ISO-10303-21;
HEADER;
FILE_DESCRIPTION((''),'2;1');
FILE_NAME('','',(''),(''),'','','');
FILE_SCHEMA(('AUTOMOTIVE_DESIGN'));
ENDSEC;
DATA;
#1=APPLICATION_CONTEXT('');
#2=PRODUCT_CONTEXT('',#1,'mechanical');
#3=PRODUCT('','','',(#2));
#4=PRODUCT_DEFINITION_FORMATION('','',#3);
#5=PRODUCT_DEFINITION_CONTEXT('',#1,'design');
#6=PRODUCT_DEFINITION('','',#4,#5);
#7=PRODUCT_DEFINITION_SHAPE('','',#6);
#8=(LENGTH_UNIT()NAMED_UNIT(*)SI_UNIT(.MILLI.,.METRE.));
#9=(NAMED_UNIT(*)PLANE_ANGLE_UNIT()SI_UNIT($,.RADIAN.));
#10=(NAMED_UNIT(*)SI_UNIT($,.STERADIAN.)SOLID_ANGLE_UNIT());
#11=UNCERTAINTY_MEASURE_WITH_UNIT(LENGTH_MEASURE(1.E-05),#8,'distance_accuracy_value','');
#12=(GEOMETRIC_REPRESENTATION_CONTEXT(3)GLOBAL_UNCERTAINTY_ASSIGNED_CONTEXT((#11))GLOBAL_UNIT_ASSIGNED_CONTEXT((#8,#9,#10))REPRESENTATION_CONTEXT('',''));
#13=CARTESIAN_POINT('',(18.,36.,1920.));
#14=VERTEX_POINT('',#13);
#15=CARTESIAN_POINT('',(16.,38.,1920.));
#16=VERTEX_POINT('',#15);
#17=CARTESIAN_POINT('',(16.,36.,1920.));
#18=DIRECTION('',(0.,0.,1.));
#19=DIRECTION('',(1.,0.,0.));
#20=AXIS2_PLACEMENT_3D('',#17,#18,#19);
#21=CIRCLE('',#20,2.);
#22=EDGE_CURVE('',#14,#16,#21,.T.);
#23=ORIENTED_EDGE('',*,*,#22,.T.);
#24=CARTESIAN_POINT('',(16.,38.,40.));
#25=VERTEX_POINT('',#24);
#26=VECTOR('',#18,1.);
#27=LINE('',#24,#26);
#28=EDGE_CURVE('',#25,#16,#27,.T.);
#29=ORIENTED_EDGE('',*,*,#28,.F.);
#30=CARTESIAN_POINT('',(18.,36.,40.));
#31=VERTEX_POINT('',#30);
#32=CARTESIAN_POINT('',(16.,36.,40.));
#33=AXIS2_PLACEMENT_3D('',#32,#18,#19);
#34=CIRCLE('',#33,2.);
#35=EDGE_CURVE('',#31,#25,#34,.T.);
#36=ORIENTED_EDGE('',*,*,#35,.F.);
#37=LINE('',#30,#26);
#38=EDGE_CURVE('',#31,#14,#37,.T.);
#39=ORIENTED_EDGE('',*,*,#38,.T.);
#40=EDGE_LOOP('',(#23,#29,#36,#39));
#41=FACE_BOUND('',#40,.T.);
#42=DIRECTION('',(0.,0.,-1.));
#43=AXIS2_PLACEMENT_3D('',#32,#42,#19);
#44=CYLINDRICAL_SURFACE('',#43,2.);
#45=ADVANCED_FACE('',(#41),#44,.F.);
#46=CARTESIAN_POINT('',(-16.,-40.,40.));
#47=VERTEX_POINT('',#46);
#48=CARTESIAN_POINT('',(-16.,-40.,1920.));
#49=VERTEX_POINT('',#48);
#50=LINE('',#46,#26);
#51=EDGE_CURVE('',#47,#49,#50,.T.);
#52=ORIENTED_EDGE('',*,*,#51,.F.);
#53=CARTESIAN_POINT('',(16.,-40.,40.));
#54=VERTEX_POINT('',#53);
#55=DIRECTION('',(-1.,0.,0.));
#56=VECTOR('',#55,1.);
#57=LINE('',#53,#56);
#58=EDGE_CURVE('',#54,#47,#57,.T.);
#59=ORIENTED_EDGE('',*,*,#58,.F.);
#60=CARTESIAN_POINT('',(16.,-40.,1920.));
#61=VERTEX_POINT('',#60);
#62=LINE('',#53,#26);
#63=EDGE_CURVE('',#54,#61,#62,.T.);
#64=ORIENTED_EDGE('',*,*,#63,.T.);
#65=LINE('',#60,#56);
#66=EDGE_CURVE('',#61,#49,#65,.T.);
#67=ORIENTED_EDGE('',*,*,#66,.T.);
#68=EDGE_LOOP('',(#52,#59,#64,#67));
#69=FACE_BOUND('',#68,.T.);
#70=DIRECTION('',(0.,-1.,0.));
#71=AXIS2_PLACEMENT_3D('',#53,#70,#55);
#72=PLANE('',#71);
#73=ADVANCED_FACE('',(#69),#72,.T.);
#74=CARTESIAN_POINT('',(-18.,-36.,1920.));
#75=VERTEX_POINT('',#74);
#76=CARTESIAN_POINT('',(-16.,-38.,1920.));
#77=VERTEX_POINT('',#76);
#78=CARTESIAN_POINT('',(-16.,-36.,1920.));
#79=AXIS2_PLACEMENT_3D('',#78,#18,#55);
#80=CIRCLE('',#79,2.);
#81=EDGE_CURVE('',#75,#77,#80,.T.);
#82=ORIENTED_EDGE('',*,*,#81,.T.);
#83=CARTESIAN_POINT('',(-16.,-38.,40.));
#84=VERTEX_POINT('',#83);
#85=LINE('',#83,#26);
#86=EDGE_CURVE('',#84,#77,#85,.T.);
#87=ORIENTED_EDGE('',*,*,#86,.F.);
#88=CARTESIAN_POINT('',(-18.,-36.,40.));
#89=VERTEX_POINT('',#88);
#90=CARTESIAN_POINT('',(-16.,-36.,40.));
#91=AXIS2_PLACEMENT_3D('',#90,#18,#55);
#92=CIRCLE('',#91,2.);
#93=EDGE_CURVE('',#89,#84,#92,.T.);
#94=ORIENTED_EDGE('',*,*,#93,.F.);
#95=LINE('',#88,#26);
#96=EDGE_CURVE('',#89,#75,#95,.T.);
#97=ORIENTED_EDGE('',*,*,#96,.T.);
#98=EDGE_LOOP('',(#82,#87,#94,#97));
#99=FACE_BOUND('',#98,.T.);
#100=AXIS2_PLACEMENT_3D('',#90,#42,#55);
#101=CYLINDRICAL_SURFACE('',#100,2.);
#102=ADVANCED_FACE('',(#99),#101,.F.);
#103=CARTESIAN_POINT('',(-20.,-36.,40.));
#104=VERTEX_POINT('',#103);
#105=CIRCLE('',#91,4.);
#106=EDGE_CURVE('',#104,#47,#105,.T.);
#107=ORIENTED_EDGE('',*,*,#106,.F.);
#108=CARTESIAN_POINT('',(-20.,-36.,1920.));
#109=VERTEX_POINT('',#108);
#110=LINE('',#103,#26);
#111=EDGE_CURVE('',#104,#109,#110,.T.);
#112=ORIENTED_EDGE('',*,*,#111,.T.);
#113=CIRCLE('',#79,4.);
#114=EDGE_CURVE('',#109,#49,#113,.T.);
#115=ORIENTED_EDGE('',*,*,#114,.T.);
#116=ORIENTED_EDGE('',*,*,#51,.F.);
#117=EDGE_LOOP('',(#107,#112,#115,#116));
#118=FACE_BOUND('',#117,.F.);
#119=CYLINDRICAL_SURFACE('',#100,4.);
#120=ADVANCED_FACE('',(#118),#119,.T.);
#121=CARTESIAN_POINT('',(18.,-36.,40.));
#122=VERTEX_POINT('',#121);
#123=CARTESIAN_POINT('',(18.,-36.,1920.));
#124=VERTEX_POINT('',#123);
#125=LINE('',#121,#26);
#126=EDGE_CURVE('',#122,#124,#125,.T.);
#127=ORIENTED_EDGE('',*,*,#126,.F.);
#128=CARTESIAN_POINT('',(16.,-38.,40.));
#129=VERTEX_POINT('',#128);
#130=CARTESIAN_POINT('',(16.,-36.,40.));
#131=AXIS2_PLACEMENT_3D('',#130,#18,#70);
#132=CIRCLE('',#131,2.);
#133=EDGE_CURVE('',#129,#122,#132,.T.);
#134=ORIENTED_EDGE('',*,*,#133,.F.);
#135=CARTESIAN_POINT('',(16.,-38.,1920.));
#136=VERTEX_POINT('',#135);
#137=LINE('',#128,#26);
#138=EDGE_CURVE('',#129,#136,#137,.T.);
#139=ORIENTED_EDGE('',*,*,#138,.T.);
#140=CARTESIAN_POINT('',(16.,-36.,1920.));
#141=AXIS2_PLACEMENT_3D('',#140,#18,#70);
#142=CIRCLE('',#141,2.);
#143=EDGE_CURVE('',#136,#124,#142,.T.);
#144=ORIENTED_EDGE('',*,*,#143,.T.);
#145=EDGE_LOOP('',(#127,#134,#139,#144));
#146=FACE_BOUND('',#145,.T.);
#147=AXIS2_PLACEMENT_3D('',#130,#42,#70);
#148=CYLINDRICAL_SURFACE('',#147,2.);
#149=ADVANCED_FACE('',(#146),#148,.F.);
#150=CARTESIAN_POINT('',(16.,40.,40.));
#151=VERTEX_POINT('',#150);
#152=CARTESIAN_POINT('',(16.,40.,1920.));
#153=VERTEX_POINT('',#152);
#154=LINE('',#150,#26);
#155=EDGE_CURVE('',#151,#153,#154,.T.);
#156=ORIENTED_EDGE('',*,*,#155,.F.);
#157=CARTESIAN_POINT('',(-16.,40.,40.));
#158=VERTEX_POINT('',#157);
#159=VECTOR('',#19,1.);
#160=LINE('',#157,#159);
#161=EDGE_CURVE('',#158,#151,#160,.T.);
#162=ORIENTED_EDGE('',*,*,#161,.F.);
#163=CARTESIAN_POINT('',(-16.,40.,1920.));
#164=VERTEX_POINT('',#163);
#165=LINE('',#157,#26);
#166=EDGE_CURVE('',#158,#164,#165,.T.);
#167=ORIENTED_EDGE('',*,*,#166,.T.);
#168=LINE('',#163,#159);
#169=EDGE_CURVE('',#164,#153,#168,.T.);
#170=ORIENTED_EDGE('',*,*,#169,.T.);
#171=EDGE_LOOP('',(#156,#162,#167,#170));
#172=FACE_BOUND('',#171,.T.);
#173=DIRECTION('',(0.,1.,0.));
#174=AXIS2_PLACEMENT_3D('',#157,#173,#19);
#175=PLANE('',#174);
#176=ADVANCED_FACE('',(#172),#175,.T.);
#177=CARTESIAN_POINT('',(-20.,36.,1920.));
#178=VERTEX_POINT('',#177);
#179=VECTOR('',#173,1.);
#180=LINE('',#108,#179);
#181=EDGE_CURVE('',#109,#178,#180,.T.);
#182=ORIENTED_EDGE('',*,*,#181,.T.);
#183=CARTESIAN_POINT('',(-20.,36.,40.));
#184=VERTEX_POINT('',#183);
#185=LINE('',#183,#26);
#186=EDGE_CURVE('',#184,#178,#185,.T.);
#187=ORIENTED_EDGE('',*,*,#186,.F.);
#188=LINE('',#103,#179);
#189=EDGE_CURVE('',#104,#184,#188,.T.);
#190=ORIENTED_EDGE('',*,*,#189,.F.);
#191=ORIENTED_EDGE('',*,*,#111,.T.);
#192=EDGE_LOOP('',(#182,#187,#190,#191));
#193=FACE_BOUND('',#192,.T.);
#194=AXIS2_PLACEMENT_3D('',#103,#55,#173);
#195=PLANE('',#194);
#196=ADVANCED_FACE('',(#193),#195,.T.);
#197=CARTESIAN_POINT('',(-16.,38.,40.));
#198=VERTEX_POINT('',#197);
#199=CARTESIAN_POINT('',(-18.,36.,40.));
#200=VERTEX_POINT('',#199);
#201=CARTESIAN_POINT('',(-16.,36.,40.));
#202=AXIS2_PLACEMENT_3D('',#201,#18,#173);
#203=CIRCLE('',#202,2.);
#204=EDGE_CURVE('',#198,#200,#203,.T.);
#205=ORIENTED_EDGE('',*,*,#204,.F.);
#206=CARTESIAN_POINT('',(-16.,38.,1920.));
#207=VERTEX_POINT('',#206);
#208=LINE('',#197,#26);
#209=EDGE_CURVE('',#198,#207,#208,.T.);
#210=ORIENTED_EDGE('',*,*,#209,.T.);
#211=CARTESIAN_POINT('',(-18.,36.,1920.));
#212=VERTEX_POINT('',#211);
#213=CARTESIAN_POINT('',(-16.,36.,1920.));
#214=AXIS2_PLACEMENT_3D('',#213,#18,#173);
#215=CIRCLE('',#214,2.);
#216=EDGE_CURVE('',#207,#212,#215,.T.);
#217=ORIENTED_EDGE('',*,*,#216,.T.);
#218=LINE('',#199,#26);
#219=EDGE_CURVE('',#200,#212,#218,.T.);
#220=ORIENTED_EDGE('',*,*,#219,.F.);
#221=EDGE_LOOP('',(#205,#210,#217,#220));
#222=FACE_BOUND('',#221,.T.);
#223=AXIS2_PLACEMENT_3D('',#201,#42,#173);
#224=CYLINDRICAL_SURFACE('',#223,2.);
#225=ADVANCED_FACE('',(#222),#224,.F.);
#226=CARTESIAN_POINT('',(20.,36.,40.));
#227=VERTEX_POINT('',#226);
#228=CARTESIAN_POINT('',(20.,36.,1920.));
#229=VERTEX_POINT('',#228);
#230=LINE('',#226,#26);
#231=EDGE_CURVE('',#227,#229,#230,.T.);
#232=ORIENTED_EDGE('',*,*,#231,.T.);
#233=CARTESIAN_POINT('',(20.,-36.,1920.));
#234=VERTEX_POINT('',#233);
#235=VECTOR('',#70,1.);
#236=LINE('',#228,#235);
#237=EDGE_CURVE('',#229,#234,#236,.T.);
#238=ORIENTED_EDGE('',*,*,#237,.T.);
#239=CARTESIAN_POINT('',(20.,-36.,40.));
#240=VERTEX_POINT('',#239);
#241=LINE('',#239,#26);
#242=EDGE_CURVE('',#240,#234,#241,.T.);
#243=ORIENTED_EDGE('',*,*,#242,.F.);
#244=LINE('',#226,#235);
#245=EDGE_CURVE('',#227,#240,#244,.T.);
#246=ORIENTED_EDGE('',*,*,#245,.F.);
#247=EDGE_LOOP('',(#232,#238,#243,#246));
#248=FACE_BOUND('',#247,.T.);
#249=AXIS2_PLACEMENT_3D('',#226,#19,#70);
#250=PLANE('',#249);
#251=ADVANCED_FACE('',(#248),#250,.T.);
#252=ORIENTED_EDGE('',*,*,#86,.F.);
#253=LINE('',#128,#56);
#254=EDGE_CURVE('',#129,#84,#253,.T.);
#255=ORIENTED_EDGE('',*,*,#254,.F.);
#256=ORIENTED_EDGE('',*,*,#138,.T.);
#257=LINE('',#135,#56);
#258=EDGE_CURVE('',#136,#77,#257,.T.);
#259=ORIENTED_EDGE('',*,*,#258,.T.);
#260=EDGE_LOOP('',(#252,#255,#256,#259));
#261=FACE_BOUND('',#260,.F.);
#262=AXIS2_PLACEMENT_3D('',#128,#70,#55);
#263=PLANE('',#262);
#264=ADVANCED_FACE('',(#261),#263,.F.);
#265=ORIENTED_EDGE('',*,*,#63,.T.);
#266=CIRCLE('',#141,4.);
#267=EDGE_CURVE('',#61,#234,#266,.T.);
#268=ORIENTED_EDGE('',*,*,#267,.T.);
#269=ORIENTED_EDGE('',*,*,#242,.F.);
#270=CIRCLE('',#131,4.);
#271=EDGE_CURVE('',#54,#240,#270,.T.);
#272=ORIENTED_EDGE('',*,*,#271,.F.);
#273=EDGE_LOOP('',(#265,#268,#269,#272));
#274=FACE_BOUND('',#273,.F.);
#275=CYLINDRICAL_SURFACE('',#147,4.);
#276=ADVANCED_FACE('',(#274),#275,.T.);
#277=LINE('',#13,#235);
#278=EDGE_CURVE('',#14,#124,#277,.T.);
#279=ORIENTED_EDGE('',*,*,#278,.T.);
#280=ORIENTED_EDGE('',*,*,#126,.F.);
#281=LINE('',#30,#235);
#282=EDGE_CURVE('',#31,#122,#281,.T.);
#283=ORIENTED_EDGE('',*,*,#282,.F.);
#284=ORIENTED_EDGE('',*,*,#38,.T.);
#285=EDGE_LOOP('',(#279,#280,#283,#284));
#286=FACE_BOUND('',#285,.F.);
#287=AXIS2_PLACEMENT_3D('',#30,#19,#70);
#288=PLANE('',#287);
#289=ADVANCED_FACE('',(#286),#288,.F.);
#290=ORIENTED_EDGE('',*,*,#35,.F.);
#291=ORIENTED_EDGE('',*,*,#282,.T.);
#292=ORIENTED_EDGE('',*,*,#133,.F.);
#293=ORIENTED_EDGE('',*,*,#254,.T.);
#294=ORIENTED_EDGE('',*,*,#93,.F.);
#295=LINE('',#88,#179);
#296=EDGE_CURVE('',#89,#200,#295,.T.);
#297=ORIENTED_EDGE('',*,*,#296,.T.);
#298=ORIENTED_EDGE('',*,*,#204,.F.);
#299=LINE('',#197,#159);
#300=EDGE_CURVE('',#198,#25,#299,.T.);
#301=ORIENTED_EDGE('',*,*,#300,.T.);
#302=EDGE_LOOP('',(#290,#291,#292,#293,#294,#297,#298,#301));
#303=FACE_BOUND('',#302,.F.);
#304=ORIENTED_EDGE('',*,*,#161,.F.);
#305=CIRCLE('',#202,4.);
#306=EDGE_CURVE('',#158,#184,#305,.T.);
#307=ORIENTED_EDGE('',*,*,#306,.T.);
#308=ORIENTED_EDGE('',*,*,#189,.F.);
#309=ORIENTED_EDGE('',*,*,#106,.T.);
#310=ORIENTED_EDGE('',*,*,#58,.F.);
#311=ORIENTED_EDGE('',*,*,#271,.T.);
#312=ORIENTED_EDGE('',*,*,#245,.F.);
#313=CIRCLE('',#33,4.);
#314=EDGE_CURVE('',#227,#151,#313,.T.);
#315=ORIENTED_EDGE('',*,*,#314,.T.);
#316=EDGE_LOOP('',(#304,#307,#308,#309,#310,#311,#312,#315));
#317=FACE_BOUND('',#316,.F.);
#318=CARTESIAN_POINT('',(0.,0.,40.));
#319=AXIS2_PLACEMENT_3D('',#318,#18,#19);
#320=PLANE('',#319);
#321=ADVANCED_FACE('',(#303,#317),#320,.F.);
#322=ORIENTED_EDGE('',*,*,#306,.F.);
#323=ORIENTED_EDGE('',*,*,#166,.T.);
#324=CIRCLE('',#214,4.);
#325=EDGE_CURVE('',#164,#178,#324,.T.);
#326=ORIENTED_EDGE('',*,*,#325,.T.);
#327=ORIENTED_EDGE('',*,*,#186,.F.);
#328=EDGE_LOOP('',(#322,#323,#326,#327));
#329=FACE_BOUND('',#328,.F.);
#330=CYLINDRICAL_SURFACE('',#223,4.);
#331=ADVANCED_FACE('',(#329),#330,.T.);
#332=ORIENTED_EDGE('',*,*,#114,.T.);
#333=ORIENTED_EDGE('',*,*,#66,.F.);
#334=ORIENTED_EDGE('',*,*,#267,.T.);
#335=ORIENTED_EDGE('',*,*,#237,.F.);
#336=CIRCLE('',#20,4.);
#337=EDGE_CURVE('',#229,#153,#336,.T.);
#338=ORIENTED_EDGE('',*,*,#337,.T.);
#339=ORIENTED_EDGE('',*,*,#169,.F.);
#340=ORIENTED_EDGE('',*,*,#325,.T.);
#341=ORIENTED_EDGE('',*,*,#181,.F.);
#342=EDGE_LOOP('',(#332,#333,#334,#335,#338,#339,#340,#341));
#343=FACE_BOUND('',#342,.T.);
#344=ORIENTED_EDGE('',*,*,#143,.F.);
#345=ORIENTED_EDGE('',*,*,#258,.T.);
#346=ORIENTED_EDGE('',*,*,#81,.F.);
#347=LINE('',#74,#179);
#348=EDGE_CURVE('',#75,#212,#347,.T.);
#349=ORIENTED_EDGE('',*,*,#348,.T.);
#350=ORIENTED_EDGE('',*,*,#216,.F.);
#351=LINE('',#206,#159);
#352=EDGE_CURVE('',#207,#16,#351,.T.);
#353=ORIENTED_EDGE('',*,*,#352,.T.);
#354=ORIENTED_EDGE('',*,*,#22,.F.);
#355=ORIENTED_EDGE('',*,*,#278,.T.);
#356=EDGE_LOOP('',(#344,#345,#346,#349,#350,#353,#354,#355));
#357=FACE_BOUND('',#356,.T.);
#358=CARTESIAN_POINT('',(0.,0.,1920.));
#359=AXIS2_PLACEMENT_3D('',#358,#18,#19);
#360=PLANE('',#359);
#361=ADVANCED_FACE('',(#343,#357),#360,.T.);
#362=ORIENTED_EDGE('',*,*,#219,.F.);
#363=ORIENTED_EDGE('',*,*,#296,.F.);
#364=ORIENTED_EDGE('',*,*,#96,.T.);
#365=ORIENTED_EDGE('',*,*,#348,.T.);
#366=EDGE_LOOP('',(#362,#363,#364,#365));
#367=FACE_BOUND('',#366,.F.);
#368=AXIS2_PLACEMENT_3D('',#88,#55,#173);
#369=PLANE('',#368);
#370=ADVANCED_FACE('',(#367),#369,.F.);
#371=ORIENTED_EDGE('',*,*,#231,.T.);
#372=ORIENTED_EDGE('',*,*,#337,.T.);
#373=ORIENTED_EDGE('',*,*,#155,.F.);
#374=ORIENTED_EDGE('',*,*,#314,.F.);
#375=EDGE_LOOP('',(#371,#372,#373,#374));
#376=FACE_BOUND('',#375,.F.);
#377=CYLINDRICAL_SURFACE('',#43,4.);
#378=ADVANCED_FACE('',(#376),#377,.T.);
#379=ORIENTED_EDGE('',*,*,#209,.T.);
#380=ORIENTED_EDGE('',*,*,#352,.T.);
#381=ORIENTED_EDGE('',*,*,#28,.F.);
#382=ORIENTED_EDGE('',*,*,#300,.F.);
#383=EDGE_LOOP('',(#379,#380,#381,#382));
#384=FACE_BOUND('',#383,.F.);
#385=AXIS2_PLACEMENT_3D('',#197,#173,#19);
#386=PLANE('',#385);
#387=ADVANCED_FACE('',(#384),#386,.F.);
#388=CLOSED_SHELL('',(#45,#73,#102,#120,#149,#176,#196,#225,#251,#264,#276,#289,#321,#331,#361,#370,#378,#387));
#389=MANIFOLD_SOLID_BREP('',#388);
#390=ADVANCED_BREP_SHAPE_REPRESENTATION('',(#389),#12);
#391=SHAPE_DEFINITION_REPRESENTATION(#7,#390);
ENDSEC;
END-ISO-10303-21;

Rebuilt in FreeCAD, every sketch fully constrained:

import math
import FreeCAD as App
import Part
import Sketcher
from FreeCAD import Vector

doc = App.newDocument("Part")
body = doc.addObject("PartDesign::Body", "Body")

# Sketch on XY plane
sketch1 = body.newObject("Sketcher::SketchObject", "Sketch")
sketch1.AttachmentSupport = (doc.getObject("XY_Plane"), [""])
sketch1.MapMode = "FlatFace"
sketch1.AttachmentOffset = App.Placement(Vector(0, 0, 40), App.Rotation())
sketch1.addGeometry([
    Part.LineSegment(Vector(-20, 36, 0), Vector(-20, -36, 0)),  # 0
    Part.ArcOfCircle(Part.Circle(Vector(-16, -36, 0), Vector(0, 0, 1), 4), math.radians(180), math.radians(270)),  # 1
    Part.LineSegment(Vector(-16, -40, 0), Vector(16, -40, 0)),  # 2
    Part.ArcOfCircle(Part.Circle(Vector(16, -36, 0), Vector(0, 0, 1), 4), math.radians(-90), math.radians(0)),  # 3
    Part.LineSegment(Vector(20, -36, 0), Vector(20, 36, 0)),  # 4
    Part.ArcOfCircle(Part.Circle(Vector(16, 36, 0), Vector(0, 0, 1), 4), math.radians(0), math.radians(90)),  # 5
    Part.LineSegment(Vector(16, 40, 0), Vector(-16, 40, 0)),  # 6
    Part.ArcOfCircle(Part.Circle(Vector(-16, 36, 0), Vector(0, 0, 1), 4), math.radians(90), math.radians(180)),  # 7
    Part.ArcOfCircle(Part.Circle(Vector(-16, 36, 0), Vector(0, 0, 1), 2), math.radians(90), math.radians(180)),  # 8
    Part.LineSegment(Vector(-16, 38, 0), Vector(16, 38, 0)),  # 9
    Part.ArcOfCircle(Part.Circle(Vector(16, 36, 0), Vector(0, 0, 1), 2), math.radians(0), math.radians(90)),  # 10
    Part.LineSegment(Vector(18, 36, 0), Vector(18, -36, 0)),  # 11
    Part.ArcOfCircle(Part.Circle(Vector(16, -36, 0), Vector(0, 0, 1), 2), math.radians(-90), math.radians(0)),  # 12
    Part.LineSegment(Vector(16, -38, 0), Vector(-16, -38, 0)),  # 13
    Part.ArcOfCircle(Part.Circle(Vector(-16, -36, 0), Vector(0, 0, 1), 2), math.radians(180), math.radians(270)),  # 14
    Part.LineSegment(Vector(-18, -36, 0), Vector(-18, 36, 0)),  # 15
], False)
sketch1.addConstraint([
    Sketcher.Constraint("Tangent", 0, 2, 1, 1),
    Sketcher.Constraint("Tangent", 1, 2, 2, 1),
    Sketcher.Constraint("Tangent", 2, 2, 3, 1),
    Sketcher.Constraint("Tangent", 3, 2, 4, 1),
    Sketcher.Constraint("Tangent", 4, 2, 5, 1),
    Sketcher.Constraint("Tangent", 5, 2, 6, 1),
    Sketcher.Constraint("Tangent", 6, 2, 7, 1),
    Sketcher.Constraint("Tangent", 7, 2, 0, 1),
    Sketcher.Constraint("Tangent", 8, 1, 9, 1),
    Sketcher.Constraint("Tangent", 9, 2, 10, 2),
    Sketcher.Constraint("Tangent", 10, 1, 11, 1),
    Sketcher.Constraint("Tangent", 11, 2, 12, 2),
    Sketcher.Constraint("Tangent", 12, 1, 13, 1),
    Sketcher.Constraint("Tangent", 13, 2, 14, 2),
    Sketcher.Constraint("Tangent", 14, 1, 15, 1),
    Sketcher.Constraint("Tangent", 15, 2, 8, 2),
    Sketcher.Constraint("Vertical", 0),
    Sketcher.Constraint("Horizontal", 2),
    Sketcher.Constraint("Vertical", 4),
    Sketcher.Constraint("Horizontal", 6),
    Sketcher.Constraint("Horizontal", 9),
    Sketcher.Constraint("Vertical", 11),
    Sketcher.Constraint("Horizontal", 13),
    Sketcher.Constraint("Vertical", 15),
    Sketcher.Constraint("Coincident", 8, 3, 7, 3),
    Sketcher.Constraint("Coincident", 10, 3, 5, 3),
    Sketcher.Constraint("Coincident", 12, 3, 3, 3),
    Sketcher.Constraint("Equal", 1, 3),
    Sketcher.Constraint("Equal", 3, 5),
    Sketcher.Constraint("Equal", 5, 7),
    Sketcher.Constraint("Equal", 12, 14),
    Sketcher.Constraint("Symmetric", 1, 3, 5, 3, -1, 1),
    Sketcher.Constraint("Radius", 1, 4.0),
    Sketcher.Constraint("Radius", 8, 2.0),
    Sketcher.Constraint("DistanceX", 0, 2, -1, 1, 20.0),
    Sketcher.Constraint("DistanceY", 1, 2, -1, 1, 40.0),
])
pad1 = body.newObject("PartDesign::Pad", "Pad")
pad1.Profile = sketch1
pad1.Length = 1880

doc.recompute()
